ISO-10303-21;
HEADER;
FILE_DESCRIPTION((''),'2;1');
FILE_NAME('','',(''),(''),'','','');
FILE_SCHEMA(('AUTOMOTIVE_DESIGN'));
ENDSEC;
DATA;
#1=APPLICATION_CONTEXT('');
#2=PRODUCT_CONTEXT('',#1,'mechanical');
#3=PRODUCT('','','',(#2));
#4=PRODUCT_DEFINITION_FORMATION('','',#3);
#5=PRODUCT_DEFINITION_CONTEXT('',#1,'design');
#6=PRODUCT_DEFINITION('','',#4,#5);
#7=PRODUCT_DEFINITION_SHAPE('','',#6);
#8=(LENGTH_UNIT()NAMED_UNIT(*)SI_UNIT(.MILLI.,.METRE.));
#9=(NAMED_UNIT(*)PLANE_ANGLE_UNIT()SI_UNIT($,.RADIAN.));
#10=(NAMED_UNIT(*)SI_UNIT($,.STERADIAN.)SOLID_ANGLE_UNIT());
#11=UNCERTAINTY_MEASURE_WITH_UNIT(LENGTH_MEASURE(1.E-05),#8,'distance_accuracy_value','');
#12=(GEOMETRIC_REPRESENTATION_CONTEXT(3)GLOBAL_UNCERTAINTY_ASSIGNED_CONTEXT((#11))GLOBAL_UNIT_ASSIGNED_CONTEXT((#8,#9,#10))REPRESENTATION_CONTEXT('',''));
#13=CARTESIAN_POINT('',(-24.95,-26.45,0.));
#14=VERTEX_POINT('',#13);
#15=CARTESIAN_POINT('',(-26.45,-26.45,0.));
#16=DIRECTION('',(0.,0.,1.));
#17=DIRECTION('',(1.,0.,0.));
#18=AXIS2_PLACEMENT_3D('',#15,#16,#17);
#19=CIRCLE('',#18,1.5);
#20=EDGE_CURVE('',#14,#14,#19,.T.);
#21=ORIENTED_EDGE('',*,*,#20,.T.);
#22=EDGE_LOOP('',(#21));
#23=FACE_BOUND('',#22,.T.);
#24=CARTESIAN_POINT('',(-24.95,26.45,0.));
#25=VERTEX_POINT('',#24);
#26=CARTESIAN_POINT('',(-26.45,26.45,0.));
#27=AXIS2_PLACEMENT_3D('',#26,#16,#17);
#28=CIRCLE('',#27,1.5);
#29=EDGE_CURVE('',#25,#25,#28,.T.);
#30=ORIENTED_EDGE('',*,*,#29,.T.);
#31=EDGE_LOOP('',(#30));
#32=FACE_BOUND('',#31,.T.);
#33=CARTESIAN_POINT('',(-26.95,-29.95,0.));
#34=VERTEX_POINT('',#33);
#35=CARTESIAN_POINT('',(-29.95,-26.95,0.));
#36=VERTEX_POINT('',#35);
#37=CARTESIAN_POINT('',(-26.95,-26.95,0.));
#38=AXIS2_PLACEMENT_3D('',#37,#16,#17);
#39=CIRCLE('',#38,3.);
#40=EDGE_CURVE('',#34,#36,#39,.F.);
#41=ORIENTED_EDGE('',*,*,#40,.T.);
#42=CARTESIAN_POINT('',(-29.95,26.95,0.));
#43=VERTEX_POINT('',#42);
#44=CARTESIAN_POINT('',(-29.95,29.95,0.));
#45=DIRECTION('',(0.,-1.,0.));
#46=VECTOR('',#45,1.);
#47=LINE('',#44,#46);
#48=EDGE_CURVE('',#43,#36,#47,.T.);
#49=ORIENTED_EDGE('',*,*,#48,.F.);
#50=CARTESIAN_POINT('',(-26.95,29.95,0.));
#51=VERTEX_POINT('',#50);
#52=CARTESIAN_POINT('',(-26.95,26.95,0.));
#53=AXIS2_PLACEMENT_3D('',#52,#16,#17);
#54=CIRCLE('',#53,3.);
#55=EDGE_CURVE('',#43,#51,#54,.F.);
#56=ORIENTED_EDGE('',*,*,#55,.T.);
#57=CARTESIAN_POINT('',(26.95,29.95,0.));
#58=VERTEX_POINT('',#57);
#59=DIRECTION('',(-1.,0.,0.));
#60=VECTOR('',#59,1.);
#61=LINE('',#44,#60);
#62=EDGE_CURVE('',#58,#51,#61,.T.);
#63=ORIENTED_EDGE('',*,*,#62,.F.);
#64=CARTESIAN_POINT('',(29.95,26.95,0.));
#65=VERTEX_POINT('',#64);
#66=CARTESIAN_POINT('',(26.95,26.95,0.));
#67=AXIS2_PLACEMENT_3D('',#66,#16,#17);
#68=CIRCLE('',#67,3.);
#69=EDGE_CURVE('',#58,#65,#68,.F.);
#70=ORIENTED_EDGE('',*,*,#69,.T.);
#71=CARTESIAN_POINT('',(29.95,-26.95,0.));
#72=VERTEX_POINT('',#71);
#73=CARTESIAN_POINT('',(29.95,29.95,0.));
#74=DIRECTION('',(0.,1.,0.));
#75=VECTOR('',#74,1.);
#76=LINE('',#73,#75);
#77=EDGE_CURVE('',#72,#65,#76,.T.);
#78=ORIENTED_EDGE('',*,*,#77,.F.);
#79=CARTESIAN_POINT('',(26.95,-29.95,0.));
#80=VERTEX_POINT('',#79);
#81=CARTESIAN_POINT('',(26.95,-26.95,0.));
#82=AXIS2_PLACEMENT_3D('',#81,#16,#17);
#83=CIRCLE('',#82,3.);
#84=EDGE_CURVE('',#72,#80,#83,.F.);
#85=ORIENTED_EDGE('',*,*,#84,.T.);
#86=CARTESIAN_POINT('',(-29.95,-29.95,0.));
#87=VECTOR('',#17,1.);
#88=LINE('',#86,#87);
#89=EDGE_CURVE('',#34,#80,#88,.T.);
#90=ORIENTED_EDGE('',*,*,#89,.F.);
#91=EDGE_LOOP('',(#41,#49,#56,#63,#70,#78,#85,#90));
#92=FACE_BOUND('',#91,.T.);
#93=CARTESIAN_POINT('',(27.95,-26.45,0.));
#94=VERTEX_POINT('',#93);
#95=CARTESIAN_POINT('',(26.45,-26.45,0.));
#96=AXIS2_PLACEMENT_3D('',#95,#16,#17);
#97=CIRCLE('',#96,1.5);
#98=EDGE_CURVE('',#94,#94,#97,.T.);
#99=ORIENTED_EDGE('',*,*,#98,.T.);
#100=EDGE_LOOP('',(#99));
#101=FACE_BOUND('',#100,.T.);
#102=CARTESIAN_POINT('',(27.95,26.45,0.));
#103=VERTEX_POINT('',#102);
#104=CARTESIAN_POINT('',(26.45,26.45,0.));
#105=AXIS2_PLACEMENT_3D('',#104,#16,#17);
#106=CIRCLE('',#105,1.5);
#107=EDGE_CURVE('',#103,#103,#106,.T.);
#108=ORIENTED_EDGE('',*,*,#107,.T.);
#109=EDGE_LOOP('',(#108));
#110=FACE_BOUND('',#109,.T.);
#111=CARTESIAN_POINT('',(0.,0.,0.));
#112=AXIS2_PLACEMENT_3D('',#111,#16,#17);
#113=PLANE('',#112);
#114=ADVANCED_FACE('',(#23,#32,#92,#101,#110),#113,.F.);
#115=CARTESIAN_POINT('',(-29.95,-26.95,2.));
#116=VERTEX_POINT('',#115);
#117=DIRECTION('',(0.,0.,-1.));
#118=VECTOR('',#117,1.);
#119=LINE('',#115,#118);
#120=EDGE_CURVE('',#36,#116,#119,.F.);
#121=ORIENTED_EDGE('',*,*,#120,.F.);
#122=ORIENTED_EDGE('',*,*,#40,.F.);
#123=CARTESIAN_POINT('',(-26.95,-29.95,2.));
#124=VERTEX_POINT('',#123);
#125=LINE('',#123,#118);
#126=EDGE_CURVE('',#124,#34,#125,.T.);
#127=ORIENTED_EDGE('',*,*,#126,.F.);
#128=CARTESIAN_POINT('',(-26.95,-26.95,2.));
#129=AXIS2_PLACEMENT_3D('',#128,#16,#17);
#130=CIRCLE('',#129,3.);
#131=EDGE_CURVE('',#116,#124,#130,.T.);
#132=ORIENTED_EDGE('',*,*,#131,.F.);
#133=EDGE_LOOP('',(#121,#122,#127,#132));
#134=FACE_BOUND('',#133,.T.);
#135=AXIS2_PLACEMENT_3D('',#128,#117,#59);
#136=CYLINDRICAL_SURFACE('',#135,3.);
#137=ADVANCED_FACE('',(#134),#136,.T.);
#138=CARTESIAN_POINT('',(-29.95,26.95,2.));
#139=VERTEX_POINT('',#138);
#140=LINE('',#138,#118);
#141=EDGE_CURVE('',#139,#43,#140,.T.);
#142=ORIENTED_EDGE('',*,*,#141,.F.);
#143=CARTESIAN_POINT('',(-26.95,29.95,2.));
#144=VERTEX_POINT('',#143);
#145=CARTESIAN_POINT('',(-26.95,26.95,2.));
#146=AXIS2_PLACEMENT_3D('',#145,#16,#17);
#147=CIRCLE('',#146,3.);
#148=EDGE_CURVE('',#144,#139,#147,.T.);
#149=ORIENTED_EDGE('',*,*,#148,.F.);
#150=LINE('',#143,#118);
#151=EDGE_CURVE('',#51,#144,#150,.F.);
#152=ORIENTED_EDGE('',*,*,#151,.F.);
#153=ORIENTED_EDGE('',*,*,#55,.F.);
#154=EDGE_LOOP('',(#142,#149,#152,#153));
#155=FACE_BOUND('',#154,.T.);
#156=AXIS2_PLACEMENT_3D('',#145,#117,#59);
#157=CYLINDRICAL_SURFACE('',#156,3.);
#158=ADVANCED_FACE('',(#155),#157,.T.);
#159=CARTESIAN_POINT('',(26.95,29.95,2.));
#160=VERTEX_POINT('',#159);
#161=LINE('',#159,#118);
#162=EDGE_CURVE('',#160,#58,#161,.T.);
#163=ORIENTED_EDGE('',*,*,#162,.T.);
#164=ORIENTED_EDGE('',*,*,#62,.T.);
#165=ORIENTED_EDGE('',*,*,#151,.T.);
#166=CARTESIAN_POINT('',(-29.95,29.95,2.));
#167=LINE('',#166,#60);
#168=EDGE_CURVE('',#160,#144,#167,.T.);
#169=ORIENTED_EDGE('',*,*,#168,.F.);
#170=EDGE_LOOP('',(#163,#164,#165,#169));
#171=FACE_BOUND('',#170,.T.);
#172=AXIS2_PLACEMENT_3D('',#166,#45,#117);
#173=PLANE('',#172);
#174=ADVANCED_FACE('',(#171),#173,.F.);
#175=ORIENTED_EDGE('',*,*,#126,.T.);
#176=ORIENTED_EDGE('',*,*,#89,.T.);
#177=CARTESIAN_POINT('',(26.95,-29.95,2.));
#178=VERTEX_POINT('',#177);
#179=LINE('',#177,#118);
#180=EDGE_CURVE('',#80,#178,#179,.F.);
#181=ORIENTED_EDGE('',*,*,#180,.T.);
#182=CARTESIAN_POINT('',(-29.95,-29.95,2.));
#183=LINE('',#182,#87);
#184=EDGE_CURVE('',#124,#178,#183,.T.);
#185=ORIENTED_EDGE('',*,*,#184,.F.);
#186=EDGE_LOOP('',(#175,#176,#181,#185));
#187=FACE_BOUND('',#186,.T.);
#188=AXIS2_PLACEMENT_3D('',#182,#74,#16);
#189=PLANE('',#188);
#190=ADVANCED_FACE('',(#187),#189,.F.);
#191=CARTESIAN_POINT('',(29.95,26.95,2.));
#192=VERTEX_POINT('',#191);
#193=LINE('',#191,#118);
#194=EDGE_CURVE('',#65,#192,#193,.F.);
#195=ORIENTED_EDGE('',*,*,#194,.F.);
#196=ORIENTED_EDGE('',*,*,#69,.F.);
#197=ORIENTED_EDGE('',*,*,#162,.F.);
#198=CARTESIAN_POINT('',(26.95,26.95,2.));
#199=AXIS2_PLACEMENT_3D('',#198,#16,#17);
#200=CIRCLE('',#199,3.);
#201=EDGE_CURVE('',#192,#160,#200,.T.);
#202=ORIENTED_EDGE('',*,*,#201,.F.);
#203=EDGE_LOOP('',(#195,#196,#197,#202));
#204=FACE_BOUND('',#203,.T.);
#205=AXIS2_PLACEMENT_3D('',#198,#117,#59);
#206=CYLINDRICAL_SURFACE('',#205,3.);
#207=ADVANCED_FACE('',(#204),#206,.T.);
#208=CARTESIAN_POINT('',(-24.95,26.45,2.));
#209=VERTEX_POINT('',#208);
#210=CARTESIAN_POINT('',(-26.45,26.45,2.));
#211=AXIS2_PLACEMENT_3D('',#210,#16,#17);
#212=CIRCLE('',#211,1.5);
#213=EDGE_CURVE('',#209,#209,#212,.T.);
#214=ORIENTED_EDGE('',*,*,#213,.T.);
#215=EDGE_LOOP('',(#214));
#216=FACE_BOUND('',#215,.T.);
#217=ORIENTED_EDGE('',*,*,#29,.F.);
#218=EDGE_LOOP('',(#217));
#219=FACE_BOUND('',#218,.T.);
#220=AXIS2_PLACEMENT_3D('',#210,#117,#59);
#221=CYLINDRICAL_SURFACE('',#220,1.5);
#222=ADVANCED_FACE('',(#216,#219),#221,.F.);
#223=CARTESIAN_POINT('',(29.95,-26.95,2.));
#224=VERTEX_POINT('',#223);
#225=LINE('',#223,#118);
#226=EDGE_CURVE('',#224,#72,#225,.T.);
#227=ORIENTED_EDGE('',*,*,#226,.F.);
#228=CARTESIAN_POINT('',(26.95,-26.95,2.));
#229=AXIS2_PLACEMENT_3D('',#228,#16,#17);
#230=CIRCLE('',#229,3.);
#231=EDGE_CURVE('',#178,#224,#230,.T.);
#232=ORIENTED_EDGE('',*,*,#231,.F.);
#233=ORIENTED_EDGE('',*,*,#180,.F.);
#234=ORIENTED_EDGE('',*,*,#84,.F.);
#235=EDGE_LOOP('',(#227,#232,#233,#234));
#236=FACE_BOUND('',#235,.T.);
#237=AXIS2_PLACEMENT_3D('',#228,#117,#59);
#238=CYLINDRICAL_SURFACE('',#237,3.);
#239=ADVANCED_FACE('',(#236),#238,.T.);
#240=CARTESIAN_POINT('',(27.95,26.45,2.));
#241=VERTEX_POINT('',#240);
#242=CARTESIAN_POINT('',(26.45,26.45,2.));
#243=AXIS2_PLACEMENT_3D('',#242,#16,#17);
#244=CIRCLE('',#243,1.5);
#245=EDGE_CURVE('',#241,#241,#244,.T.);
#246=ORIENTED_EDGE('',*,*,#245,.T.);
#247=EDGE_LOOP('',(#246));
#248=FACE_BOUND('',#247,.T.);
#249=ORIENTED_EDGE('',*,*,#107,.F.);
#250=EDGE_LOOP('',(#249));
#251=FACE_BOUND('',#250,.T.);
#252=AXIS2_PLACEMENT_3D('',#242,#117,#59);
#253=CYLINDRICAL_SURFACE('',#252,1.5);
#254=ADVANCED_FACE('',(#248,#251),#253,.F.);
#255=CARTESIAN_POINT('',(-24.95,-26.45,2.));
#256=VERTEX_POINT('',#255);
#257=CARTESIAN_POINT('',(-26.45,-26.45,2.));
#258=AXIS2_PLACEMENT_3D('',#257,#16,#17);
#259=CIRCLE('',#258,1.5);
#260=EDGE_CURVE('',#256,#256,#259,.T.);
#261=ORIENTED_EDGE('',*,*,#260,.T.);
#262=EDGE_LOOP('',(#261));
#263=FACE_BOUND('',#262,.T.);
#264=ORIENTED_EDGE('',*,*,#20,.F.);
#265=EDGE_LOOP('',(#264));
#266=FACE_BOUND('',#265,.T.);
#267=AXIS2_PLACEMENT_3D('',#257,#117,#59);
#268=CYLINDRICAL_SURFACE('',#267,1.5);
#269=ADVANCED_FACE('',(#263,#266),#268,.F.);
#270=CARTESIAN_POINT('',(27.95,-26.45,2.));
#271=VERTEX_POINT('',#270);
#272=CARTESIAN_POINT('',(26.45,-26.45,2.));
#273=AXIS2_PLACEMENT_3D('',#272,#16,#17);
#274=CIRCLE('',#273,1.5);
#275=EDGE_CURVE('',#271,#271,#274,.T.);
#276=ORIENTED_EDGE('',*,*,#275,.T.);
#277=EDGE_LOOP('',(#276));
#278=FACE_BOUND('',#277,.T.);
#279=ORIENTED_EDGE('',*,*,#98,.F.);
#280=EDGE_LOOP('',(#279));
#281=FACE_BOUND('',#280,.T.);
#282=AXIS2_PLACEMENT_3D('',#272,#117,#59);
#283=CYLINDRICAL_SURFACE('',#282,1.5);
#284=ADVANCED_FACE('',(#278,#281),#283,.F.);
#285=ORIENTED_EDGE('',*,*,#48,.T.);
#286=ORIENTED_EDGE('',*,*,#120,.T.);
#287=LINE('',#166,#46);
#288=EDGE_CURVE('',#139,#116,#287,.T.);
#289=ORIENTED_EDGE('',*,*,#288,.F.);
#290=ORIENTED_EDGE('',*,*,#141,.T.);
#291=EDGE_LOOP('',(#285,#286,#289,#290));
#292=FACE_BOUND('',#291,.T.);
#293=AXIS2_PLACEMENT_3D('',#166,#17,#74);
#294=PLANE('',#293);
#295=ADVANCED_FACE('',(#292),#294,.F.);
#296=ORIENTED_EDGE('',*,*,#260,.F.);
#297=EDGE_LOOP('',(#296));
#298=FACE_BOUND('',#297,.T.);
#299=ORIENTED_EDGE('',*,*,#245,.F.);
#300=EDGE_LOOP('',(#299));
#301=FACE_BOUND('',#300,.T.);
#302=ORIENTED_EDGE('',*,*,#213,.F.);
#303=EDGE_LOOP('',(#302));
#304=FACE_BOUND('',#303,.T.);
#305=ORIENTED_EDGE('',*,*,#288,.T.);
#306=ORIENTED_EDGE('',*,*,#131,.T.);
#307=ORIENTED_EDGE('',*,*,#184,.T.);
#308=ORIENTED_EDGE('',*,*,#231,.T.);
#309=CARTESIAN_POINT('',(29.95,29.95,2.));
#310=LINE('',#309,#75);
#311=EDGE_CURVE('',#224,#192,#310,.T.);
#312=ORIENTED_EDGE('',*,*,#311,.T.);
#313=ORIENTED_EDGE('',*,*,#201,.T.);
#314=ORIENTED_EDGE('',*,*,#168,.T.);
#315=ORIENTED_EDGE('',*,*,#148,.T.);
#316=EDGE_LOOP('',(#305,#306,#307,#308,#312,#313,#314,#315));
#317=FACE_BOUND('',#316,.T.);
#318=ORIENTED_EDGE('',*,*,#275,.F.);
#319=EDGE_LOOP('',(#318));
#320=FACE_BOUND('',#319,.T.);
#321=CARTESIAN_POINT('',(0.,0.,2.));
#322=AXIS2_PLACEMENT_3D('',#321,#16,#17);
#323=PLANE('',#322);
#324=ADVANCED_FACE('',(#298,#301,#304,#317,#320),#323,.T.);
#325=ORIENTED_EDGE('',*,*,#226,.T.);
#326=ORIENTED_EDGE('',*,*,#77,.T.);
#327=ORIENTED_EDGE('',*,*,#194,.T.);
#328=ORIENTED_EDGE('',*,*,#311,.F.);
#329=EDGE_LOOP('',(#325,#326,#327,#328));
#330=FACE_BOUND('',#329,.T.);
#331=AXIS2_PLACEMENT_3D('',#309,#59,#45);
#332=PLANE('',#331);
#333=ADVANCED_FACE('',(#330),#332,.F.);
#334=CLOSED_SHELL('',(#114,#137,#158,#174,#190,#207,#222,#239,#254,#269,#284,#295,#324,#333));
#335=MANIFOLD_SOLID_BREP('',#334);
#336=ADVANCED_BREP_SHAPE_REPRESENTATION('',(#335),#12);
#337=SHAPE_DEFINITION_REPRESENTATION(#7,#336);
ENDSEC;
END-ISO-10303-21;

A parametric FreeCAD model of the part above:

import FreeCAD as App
import Part
import Sketcher

V = App.Vector
Q = App.Units.Quantity


def edges_at(feature, points):
    """Names of the edges that pass closest to the given points."""
    edges = feature.Shape.Edges
    near = lambda p: min(range(len(edges)), key=lambda i: edges[i].distToShape(Part.Vertex(*p))[0])
    return sorted({f"Edge{near(p) + 1}" for p in points})


def add_polygon(sketch, points):
    """Adds a closed chain of lines whose ends are joined by coincident constraints."""
    first, n = sketch.GeometryCount, len(points)
    for a, b in zip(points, points[1:] + points[:1]):
        sketch.addGeometry(Part.LineSegment(App.Vector(*a, 0), App.Vector(*b, 0)), False)
    for i in range(n):
        sketch.addConstraint(Sketcher.Constraint("Coincident", first + i, 2, first + (i + 1) % n, 1))

doc = App.newDocument("Part")
body = doc.addObject("PartDesign::Body", "Body")

sketch1 = doc.addObject("Sketcher::SketchObject", "Sketch")
body.addObject(sketch1)
sketch1.AttachmentSupport = (doc.XY_Plane, [""])
sketch1.MapMode = "FlatFace"
add_polygon(sketch1, [(-29.9, 29.9), (-29.9, -29.9), (29.9, -29.9), (29.9, 29.9)])
sketch1.addGeometry(Part.Circle(V(-26.4, -26.4, 0), V(0, 0, 1), 1.5), False)
sketch1.addGeometry(Part.Circle(V(26.4, -26.4, 0), V(0, 0, 1), 1.5), False)
sketch1.addGeometry(Part.Circle(V(-26.4, 26.4, 0), V(0, 0, 1), 1.5), False)
sketch1.addGeometry(Part.Circle(V(26.4, 26.4, 0), V(0, 0, 1), 1.5), False)
sketch1.addConstraint(Sketcher.Constraint("Vertical", 0))
sketch1.addConstraint(Sketcher.Constraint("Horizontal", 1))
sketch1.addConstraint(Sketcher.Constraint("Vertical", 2))
sketch1.addConstraint(Sketcher.Constraint("Horizontal", 3))
sketch1.addConstraint(Sketcher.Constraint("Equal", 4, 5))
sketch1.addConstraint(Sketcher.Constraint("Equal", 5, 6))
sketch1.addConstraint(Sketcher.Constraint("Equal", 6, 7))
sketch1.addConstraint(Sketcher.Constraint("Symmetric", 5, 3, 6, 3, -1, 1))
sketch1.addConstraint(Sketcher.Constraint("Symmetric", 4, 3, 7, 3, -1, 1))
sketch1.addConstraint(Sketcher.Constraint("Symmetric", 0, 2, 2, 2, -1, 1))
sketch1.addConstraint(Sketcher.Constraint("Symmetric", 4, 3, 5, 3, -2))
sketch1.addConstraint(Sketcher.Constraint("Equal", 3, 0))
sketch1.addConstraint(Sketcher.Constraint("Diameter", 4, Q("3 mm")))
sketch1.addConstraint(Sketcher.Constraint("DistanceX", 1, 1, 1, 2, Q("59.9 mm")))
sketch1.addConstraint(Sketcher.Constraint("DistanceX", 4, 3, 5, 3, Q("52.9 mm")))
sketch1.addConstraint(Sketcher.Constraint("DistanceY", 4, 3, 6, 3, Q("52.9 mm")))
pad1 = doc.addObject("PartDesign::Pad", "Pad")
body.addObject(pad1)
pad1.Profile = sketch1
pad1.Length = 2
doc.recompute()

fillet = doc.addObject("PartDesign::Fillet", "Fillet")
body.addObject(fillet)
fillet.Base = (pad1, edges_at(pad1, [
    (29.95, -29.95, 1),
    (-29.95, -29.95, 1),
    (-29.95, 29.95, 1),
    (29.95, 29.95, 1),
]))
fillet.Radius = 3

doc.recompute()
